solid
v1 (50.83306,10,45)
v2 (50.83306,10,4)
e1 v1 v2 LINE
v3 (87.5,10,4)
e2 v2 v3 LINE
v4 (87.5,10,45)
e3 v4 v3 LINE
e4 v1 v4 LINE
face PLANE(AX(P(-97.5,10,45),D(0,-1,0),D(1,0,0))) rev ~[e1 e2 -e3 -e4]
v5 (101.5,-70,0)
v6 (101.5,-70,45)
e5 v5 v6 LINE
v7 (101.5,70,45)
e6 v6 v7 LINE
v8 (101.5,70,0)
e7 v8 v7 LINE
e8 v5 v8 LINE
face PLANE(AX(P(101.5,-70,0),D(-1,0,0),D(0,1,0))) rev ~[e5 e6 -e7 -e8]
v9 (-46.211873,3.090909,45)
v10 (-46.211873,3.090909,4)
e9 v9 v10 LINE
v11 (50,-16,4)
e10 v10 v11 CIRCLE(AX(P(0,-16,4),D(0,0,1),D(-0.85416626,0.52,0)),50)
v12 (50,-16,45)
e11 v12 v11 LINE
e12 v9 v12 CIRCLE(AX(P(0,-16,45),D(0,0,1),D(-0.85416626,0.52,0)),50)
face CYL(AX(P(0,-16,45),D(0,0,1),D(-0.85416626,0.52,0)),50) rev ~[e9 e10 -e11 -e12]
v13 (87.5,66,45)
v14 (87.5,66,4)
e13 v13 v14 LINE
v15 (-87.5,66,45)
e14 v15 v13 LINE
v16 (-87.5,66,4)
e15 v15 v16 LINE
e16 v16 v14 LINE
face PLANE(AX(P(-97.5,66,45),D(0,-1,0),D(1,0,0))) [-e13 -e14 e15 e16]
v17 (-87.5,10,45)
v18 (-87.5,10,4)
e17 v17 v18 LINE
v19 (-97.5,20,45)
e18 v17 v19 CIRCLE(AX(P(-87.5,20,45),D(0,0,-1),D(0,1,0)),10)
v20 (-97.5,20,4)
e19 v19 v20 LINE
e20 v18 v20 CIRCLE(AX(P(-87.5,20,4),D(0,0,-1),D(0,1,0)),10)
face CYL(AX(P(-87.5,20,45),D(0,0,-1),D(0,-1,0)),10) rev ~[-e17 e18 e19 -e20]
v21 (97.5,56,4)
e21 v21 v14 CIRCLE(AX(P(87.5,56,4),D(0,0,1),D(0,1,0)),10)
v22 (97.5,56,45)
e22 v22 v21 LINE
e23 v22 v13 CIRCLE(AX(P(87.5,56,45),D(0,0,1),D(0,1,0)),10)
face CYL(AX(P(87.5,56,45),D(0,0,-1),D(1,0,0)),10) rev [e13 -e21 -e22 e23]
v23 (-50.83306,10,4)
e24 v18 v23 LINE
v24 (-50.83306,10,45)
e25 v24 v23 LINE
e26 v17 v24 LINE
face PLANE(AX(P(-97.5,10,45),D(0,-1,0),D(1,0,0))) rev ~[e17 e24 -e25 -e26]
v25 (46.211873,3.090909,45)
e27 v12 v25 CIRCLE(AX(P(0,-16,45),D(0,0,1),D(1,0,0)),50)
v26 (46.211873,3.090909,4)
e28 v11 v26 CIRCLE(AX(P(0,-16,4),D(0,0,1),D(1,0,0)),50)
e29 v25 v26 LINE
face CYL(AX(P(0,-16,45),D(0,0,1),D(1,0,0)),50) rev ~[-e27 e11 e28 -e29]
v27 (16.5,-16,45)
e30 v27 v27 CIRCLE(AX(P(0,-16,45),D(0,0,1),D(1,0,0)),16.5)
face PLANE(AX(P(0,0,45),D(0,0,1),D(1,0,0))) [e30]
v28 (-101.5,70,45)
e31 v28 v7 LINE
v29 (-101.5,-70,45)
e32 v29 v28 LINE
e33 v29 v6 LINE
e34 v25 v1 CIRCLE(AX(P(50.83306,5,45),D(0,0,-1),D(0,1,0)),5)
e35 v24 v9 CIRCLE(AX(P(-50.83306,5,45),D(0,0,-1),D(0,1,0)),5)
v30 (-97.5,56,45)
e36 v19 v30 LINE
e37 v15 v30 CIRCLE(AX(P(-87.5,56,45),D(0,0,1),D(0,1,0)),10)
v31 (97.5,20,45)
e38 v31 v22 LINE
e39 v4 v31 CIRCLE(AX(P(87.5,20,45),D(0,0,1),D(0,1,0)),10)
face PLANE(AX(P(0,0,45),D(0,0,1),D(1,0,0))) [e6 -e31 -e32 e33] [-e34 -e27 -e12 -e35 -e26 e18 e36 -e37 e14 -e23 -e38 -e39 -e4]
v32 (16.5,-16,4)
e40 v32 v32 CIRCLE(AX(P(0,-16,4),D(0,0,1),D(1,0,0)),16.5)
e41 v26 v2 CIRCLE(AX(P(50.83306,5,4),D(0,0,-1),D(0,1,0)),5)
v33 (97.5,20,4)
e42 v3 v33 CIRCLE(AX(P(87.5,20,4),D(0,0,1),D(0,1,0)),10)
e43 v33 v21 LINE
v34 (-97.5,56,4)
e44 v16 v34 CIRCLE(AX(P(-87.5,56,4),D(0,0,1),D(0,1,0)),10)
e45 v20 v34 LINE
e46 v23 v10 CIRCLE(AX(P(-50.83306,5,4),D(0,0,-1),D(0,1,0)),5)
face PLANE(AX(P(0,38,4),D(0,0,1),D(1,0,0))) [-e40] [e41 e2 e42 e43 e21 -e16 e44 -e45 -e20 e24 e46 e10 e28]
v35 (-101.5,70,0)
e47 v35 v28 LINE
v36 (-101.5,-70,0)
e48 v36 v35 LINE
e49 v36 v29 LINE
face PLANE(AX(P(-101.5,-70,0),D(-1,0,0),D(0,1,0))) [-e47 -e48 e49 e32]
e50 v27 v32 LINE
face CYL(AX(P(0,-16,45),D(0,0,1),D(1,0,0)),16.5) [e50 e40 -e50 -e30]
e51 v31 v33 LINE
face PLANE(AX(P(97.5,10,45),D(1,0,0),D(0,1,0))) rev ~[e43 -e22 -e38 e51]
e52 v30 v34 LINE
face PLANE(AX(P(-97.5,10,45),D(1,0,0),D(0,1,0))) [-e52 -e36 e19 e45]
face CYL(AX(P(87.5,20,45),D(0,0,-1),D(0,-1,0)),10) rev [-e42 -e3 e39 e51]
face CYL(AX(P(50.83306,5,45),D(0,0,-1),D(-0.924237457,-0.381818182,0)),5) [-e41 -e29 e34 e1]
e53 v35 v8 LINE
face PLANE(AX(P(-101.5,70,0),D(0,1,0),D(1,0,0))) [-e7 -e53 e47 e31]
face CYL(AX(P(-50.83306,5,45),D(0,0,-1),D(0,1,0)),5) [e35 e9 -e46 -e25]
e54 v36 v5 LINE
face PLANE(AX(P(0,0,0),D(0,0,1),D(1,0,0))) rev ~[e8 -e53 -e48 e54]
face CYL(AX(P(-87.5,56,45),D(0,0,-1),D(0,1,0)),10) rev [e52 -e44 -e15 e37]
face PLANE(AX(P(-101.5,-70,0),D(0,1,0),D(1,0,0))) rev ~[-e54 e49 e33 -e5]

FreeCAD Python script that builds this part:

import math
import FreeCAD as App
import Part
import Sketcher
from FreeCAD import Vector


def edges_at(feature, points):
    """Names of the edges that pass closest to the given points."""
    edges = feature.Shape.Edges
    near = lambda p: min(range(len(edges)), key=lambda i: edges[i].distToShape(Part.Vertex(*p))[0])
    return sorted({f"Edge{near(p) + 1}" for p in points})

doc = App.newDocument("Part")
params = doc.addObject("Spreadsheet::Sheet", "Params")
for row, (alias, value) in enumerate([
    ("sketch1_width", "203 mm"),
    ("sketch1_height", "140 mm"),
    ("pad1_length", "45 mm"),
    ("sketch2_width", "195 mm"),
    ("sketch2_height", "56 mm"),
    ("pocket1_length", "41 mm"),
    ("sketch3_diameter", "33 mm"),
    ("sketch3_radius", "50 mm"),
    ("pocket2_length", "41 mm"),
    ("fillet_radius", "10 mm"),
    ("fillet2_radius", "5 mm"),
], start=1):
    params.set(f"A{row}", alias)
    params.set(f"B{row}", "=" + value)
    params.setAlias(f"B{row}", alias)

body = doc.addObject("PartDesign::Body", "Body")

# Sketch on XY plane
sketch1 = body.newObject("Sketcher::SketchObject", "Sketch")
sketch1.AttachmentSupport = (doc.getObject("XY_Plane"), [""])
sketch1.MapMode = "FlatFace"
sketch1.addGeometry([
    Part.LineSegment(Vector(-102, 70, 0), Vector(-102, -70, 0)),
    Part.LineSegment(Vector(-102, -70, 0), Vector(102, -70, 0)),
    Part.LineSegment(Vector(102, -70, 0), Vector(102, 70, 0)),
    Part.LineSegment(Vector(102, 70, 0), Vector(-102, 70, 0)),
], False)
sketch1.addConstraint([
    Sketcher.Constraint("Coincident", 0, 2, 1, 1),
    Sketcher.Constraint("Coincident", 1, 2, 2, 1),
    Sketcher.Constraint("Coincident", 2, 2, 3, 1),
    Sketcher.Constraint("Coincident", 3, 2, 0, 1),
    Sketcher.Constraint("Vertical", 0),
    Sketcher.Constraint("Horizontal", 1),
    Sketcher.Constraint("Vertical", 2),
    Sketcher.Constraint("Horizontal", 3),
    Sketcher.Constraint("Symmetric", 0, 2, 2, 2, -1, 1),
    Sketcher.Constraint("DistanceX", 1, 1, 1, 2, 203.0),
    Sketcher.Constraint("DistanceY", 0, 2, 0, 1, 140.0),
])
sketch1.setExpression("Constraints[9]", "Params.sketch1_width")
sketch1.setExpression("Constraints[10]", "Params.sketch1_height")
pad1 = body.newObject("PartDesign::Pad", "Pad")
pad1.Profile = sketch1
pad1.setExpression("Length", "Params.pad1_length")

# Sketch on XY plane
sketch2 = body.newObject("Sketcher::SketchObject", "Sketch001")
sketch2.AttachmentSupport = (doc.getObject("XY_Plane"), [""])
sketch2.MapMode = "FlatFace"
sketch2.AttachmentOffset = App.Placement(Vector(0, 0, 45), App.Rotation())
sketch2.addGeometry([
    Part.LineSegment(Vector(-98, 66, 0), Vector(-98, 10, 0)),
    Part.LineSegment(Vector(-98, 10, 0), Vector(98, 10, 0)),
    Part.LineSegment(Vector(98, 10, 0), Vector(98, 66, 0)),
    Part.LineSegment(Vector(98, 66, 0), Vector(-98, 66, 0)),
], False)
sketch2.addConstraint([
    Sketcher.Constraint("Coincident", 0, 2, 1, 1),
    Sketcher.Constraint("Coincident", 1, 2, 2, 1),
    Sketcher.Constraint("Coincident", 2, 2, 3, 1),
    Sketcher.Constraint("Coincident", 3, 2, 0, 1),
    Sketcher.Constraint("Vertical", 0),
    Sketcher.Constraint("Horizontal", 1),
    Sketcher.Constraint("Vertical", 2),
    Sketcher.Constraint("Horizontal", 3),
    Sketcher.Constraint("DistanceX", 1, 1, 1, 2, 195.0),
    Sketcher.Constraint("DistanceY", 0, 2, 0, 1, 56.0),
    Sketcher.Constraint("DistanceY", -1, 1, 0, 2, 10.0),
    Sketcher.Constraint("DistanceX", 0, 2, -1, 1, 97.5),
])
sketch2.setExpression("Constraints[8]", "Params.sketch2_width")
sketch2.setExpression("Constraints[9]", "Params.sketch2_height")
pocket1 = body.newObject("PartDesign::Pocket", "Pocket")
pocket1.Profile = sketch2
pocket1.setExpression("Length", "Params.pocket1_length")

# Sketch on XY plane
sketch3 = body.newObject("Sketcher::SketchObject", "Sketch002")
sketch3.AttachmentSupport = (doc.getObject("XY_Plane"), [""])
sketch3.MapMode = "FlatFace"
sketch3.AttachmentOffset = App.Placement(Vector(0, 0, 45), App.Rotation())
sketch3.addGeometry([
    Part.ArcOfCircle(Part.Circle(Vector(0, -16, 0), Vector(0, 0, 1), 50), math.radians(149), math.radians(360)),
    Part.ArcOfCircle(Part.Circle(Vector(0, -16, 0), Vector(0, 0, 1), 50), math.radians(0), math.radians(31)),
    Part.LineSegment(Vector(43, 10, 0), Vector(-43, 10, 0)),
    Part.Circle(Vector(0, -16, 0), Vector(0, 0, 1), 16),
], False)
sketch3.addConstraint([
    Sketcher.Constraint("Tangent", 0, 2, 1, 1),
    Sketcher.Constraint("Coincident", 1, 2, 2, 1),
    Sketcher.Constraint("Coincident", 2, 2, 0, 1),
    Sketcher.Constraint("Horizontal", 2),
    Sketcher.Constraint("Coincident", 3, 3, 0, 3),
    Sketcher.Constraint("Equal", 0, 1),
    Sketcher.Constraint("PointOnObject", 0, 3, -2),
    Sketcher.Constraint("Horizontal", 3, 3, 0, 2),
    Sketcher.Constraint("Diameter", 3, 33.0),
    Sketcher.Constraint("Radius", 0, 50.0),
    Sketcher.Constraint("DistanceY", 0, 3, -1, 1, 16.0),
    Sketcher.Constraint("DistanceY", -1, 1, 1, 2, 10.0),
])
sketch3.setExpression("Constraints[8]", "Params.sketch3_diameter")
sketch3.setExpression("Constraints[9]", "Params.sketch3_radius")
pocket2 = body.newObject("PartDesign::Pocket", "Pocket001")
pocket2.Profile = sketch3
pocket2.setExpression("Length", "Params.pocket2_length")
doc.recompute()

fillet = body.newObject("PartDesign::Fillet", "Fillet")
fillet.Base = (pocket2, edges_at(pocket2, [
    (97.5, 66, 24.5),
    (-97.5, 66, 24.5),
    (97.5, 10, 24.5),
    (-97.5, 10, 24.5),
]))
fillet.setExpression("Radius", "Params.fillet_radius")
doc.recompute()

fillet2 = body.newObject("PartDesign::Fillet", "Fillet001")
fillet2.Base = (fillet, edges_at(fillet, [(42.708, 10, 24.5), (-42.708, 10, 24.5)]))
fillet2.setExpression("Radius", "Params.fillet2_radius")

doc.recompute()
